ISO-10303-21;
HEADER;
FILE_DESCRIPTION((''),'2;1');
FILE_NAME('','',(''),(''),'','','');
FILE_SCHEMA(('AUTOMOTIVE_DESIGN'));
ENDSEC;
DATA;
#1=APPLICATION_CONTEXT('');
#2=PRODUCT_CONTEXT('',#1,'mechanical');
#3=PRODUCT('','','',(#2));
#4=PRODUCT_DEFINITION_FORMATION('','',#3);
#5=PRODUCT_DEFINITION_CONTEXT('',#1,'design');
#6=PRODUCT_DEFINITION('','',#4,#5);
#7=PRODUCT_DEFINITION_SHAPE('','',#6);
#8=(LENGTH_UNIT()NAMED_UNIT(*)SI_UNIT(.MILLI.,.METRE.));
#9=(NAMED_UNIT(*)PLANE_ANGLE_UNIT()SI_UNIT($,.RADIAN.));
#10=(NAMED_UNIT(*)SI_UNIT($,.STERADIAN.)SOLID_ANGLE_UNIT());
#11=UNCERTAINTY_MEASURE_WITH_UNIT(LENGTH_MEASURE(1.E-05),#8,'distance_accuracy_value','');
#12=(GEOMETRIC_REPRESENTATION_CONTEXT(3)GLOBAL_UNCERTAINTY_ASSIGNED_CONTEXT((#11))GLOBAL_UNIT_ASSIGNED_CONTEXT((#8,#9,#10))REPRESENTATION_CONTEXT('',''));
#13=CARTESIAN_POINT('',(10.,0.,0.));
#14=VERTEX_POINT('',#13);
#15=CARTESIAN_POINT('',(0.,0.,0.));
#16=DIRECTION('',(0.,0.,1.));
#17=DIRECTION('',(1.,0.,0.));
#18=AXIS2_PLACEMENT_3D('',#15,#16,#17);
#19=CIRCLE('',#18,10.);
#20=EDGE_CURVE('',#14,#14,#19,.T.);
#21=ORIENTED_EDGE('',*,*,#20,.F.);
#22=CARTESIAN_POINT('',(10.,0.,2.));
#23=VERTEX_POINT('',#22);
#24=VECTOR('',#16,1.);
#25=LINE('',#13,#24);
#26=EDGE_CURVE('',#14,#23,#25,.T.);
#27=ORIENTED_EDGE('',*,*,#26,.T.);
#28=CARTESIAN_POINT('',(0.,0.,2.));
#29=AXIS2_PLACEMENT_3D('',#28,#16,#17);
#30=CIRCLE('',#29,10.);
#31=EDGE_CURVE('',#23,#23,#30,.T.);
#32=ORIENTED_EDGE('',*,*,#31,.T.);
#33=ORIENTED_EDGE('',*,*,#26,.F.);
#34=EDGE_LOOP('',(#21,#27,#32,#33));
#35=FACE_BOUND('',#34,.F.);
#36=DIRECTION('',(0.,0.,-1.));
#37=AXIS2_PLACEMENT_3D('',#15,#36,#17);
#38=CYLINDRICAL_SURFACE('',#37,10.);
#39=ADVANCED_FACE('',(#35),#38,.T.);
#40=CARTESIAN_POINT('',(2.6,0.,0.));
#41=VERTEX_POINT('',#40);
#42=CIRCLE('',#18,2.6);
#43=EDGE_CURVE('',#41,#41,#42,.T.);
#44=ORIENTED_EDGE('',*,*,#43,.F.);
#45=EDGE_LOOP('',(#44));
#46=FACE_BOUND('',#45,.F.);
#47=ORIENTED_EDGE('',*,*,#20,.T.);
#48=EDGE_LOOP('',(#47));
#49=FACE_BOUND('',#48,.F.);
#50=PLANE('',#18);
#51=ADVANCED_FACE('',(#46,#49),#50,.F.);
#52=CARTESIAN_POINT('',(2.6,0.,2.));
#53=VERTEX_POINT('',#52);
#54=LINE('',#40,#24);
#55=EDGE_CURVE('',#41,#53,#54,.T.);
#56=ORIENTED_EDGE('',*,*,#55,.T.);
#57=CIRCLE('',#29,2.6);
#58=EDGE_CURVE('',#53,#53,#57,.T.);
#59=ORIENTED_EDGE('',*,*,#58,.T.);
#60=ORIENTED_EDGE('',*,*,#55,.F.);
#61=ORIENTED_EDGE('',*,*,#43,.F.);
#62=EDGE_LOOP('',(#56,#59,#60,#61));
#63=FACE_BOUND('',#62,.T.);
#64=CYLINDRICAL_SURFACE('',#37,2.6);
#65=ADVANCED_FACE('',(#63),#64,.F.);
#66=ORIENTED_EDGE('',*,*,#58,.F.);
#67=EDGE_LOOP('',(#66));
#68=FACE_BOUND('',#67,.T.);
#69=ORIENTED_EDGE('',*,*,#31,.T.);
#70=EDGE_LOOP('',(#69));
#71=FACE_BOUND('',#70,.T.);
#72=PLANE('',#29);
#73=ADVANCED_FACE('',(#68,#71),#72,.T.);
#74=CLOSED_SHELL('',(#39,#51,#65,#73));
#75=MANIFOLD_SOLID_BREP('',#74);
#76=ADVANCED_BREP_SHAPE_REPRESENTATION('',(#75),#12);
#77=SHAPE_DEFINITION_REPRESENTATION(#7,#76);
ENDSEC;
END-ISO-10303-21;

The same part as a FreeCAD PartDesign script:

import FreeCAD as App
import Part
import Sketcher
from FreeCAD import Vector
Q = App.Units.Quantity

doc = App.newDocument("Part")
body = doc.addObject("PartDesign::Body", "Body")

sketch1 = doc.addObject("Sketcher::SketchObject", "Sketch")
body.addObject(sketch1)
sketch1.AttachmentSupport = (doc.XY_Plane, [""])
sketch1.MapMode = "FlatFace"
sketch1.addGeometry([
    Part.Circle(Vector(0, 0, 0), Vector(0, 0, 1), 10),
    Part.Circle(Vector(0, 0, 0), Vector(0, 0, 1), 2.6),
], False)
sketch1.addConstraint([
    Sketcher.Constraint("Coincident", 0, 3, -1, 1),
    Sketcher.Constraint("Coincident", 1, 3, -1, 1),
    Sketcher.Constraint("Diameter", 0, Q("20 mm")),
    Sketcher.Constraint("Diameter", 1, Q("5.2 mm")),
])
pad1 = doc.addObject("PartDesign::Pad", "Pad")
body.addObject(pad1)
pad1.Profile = sketch1
pad1.Length = 2

doc.recompute()
